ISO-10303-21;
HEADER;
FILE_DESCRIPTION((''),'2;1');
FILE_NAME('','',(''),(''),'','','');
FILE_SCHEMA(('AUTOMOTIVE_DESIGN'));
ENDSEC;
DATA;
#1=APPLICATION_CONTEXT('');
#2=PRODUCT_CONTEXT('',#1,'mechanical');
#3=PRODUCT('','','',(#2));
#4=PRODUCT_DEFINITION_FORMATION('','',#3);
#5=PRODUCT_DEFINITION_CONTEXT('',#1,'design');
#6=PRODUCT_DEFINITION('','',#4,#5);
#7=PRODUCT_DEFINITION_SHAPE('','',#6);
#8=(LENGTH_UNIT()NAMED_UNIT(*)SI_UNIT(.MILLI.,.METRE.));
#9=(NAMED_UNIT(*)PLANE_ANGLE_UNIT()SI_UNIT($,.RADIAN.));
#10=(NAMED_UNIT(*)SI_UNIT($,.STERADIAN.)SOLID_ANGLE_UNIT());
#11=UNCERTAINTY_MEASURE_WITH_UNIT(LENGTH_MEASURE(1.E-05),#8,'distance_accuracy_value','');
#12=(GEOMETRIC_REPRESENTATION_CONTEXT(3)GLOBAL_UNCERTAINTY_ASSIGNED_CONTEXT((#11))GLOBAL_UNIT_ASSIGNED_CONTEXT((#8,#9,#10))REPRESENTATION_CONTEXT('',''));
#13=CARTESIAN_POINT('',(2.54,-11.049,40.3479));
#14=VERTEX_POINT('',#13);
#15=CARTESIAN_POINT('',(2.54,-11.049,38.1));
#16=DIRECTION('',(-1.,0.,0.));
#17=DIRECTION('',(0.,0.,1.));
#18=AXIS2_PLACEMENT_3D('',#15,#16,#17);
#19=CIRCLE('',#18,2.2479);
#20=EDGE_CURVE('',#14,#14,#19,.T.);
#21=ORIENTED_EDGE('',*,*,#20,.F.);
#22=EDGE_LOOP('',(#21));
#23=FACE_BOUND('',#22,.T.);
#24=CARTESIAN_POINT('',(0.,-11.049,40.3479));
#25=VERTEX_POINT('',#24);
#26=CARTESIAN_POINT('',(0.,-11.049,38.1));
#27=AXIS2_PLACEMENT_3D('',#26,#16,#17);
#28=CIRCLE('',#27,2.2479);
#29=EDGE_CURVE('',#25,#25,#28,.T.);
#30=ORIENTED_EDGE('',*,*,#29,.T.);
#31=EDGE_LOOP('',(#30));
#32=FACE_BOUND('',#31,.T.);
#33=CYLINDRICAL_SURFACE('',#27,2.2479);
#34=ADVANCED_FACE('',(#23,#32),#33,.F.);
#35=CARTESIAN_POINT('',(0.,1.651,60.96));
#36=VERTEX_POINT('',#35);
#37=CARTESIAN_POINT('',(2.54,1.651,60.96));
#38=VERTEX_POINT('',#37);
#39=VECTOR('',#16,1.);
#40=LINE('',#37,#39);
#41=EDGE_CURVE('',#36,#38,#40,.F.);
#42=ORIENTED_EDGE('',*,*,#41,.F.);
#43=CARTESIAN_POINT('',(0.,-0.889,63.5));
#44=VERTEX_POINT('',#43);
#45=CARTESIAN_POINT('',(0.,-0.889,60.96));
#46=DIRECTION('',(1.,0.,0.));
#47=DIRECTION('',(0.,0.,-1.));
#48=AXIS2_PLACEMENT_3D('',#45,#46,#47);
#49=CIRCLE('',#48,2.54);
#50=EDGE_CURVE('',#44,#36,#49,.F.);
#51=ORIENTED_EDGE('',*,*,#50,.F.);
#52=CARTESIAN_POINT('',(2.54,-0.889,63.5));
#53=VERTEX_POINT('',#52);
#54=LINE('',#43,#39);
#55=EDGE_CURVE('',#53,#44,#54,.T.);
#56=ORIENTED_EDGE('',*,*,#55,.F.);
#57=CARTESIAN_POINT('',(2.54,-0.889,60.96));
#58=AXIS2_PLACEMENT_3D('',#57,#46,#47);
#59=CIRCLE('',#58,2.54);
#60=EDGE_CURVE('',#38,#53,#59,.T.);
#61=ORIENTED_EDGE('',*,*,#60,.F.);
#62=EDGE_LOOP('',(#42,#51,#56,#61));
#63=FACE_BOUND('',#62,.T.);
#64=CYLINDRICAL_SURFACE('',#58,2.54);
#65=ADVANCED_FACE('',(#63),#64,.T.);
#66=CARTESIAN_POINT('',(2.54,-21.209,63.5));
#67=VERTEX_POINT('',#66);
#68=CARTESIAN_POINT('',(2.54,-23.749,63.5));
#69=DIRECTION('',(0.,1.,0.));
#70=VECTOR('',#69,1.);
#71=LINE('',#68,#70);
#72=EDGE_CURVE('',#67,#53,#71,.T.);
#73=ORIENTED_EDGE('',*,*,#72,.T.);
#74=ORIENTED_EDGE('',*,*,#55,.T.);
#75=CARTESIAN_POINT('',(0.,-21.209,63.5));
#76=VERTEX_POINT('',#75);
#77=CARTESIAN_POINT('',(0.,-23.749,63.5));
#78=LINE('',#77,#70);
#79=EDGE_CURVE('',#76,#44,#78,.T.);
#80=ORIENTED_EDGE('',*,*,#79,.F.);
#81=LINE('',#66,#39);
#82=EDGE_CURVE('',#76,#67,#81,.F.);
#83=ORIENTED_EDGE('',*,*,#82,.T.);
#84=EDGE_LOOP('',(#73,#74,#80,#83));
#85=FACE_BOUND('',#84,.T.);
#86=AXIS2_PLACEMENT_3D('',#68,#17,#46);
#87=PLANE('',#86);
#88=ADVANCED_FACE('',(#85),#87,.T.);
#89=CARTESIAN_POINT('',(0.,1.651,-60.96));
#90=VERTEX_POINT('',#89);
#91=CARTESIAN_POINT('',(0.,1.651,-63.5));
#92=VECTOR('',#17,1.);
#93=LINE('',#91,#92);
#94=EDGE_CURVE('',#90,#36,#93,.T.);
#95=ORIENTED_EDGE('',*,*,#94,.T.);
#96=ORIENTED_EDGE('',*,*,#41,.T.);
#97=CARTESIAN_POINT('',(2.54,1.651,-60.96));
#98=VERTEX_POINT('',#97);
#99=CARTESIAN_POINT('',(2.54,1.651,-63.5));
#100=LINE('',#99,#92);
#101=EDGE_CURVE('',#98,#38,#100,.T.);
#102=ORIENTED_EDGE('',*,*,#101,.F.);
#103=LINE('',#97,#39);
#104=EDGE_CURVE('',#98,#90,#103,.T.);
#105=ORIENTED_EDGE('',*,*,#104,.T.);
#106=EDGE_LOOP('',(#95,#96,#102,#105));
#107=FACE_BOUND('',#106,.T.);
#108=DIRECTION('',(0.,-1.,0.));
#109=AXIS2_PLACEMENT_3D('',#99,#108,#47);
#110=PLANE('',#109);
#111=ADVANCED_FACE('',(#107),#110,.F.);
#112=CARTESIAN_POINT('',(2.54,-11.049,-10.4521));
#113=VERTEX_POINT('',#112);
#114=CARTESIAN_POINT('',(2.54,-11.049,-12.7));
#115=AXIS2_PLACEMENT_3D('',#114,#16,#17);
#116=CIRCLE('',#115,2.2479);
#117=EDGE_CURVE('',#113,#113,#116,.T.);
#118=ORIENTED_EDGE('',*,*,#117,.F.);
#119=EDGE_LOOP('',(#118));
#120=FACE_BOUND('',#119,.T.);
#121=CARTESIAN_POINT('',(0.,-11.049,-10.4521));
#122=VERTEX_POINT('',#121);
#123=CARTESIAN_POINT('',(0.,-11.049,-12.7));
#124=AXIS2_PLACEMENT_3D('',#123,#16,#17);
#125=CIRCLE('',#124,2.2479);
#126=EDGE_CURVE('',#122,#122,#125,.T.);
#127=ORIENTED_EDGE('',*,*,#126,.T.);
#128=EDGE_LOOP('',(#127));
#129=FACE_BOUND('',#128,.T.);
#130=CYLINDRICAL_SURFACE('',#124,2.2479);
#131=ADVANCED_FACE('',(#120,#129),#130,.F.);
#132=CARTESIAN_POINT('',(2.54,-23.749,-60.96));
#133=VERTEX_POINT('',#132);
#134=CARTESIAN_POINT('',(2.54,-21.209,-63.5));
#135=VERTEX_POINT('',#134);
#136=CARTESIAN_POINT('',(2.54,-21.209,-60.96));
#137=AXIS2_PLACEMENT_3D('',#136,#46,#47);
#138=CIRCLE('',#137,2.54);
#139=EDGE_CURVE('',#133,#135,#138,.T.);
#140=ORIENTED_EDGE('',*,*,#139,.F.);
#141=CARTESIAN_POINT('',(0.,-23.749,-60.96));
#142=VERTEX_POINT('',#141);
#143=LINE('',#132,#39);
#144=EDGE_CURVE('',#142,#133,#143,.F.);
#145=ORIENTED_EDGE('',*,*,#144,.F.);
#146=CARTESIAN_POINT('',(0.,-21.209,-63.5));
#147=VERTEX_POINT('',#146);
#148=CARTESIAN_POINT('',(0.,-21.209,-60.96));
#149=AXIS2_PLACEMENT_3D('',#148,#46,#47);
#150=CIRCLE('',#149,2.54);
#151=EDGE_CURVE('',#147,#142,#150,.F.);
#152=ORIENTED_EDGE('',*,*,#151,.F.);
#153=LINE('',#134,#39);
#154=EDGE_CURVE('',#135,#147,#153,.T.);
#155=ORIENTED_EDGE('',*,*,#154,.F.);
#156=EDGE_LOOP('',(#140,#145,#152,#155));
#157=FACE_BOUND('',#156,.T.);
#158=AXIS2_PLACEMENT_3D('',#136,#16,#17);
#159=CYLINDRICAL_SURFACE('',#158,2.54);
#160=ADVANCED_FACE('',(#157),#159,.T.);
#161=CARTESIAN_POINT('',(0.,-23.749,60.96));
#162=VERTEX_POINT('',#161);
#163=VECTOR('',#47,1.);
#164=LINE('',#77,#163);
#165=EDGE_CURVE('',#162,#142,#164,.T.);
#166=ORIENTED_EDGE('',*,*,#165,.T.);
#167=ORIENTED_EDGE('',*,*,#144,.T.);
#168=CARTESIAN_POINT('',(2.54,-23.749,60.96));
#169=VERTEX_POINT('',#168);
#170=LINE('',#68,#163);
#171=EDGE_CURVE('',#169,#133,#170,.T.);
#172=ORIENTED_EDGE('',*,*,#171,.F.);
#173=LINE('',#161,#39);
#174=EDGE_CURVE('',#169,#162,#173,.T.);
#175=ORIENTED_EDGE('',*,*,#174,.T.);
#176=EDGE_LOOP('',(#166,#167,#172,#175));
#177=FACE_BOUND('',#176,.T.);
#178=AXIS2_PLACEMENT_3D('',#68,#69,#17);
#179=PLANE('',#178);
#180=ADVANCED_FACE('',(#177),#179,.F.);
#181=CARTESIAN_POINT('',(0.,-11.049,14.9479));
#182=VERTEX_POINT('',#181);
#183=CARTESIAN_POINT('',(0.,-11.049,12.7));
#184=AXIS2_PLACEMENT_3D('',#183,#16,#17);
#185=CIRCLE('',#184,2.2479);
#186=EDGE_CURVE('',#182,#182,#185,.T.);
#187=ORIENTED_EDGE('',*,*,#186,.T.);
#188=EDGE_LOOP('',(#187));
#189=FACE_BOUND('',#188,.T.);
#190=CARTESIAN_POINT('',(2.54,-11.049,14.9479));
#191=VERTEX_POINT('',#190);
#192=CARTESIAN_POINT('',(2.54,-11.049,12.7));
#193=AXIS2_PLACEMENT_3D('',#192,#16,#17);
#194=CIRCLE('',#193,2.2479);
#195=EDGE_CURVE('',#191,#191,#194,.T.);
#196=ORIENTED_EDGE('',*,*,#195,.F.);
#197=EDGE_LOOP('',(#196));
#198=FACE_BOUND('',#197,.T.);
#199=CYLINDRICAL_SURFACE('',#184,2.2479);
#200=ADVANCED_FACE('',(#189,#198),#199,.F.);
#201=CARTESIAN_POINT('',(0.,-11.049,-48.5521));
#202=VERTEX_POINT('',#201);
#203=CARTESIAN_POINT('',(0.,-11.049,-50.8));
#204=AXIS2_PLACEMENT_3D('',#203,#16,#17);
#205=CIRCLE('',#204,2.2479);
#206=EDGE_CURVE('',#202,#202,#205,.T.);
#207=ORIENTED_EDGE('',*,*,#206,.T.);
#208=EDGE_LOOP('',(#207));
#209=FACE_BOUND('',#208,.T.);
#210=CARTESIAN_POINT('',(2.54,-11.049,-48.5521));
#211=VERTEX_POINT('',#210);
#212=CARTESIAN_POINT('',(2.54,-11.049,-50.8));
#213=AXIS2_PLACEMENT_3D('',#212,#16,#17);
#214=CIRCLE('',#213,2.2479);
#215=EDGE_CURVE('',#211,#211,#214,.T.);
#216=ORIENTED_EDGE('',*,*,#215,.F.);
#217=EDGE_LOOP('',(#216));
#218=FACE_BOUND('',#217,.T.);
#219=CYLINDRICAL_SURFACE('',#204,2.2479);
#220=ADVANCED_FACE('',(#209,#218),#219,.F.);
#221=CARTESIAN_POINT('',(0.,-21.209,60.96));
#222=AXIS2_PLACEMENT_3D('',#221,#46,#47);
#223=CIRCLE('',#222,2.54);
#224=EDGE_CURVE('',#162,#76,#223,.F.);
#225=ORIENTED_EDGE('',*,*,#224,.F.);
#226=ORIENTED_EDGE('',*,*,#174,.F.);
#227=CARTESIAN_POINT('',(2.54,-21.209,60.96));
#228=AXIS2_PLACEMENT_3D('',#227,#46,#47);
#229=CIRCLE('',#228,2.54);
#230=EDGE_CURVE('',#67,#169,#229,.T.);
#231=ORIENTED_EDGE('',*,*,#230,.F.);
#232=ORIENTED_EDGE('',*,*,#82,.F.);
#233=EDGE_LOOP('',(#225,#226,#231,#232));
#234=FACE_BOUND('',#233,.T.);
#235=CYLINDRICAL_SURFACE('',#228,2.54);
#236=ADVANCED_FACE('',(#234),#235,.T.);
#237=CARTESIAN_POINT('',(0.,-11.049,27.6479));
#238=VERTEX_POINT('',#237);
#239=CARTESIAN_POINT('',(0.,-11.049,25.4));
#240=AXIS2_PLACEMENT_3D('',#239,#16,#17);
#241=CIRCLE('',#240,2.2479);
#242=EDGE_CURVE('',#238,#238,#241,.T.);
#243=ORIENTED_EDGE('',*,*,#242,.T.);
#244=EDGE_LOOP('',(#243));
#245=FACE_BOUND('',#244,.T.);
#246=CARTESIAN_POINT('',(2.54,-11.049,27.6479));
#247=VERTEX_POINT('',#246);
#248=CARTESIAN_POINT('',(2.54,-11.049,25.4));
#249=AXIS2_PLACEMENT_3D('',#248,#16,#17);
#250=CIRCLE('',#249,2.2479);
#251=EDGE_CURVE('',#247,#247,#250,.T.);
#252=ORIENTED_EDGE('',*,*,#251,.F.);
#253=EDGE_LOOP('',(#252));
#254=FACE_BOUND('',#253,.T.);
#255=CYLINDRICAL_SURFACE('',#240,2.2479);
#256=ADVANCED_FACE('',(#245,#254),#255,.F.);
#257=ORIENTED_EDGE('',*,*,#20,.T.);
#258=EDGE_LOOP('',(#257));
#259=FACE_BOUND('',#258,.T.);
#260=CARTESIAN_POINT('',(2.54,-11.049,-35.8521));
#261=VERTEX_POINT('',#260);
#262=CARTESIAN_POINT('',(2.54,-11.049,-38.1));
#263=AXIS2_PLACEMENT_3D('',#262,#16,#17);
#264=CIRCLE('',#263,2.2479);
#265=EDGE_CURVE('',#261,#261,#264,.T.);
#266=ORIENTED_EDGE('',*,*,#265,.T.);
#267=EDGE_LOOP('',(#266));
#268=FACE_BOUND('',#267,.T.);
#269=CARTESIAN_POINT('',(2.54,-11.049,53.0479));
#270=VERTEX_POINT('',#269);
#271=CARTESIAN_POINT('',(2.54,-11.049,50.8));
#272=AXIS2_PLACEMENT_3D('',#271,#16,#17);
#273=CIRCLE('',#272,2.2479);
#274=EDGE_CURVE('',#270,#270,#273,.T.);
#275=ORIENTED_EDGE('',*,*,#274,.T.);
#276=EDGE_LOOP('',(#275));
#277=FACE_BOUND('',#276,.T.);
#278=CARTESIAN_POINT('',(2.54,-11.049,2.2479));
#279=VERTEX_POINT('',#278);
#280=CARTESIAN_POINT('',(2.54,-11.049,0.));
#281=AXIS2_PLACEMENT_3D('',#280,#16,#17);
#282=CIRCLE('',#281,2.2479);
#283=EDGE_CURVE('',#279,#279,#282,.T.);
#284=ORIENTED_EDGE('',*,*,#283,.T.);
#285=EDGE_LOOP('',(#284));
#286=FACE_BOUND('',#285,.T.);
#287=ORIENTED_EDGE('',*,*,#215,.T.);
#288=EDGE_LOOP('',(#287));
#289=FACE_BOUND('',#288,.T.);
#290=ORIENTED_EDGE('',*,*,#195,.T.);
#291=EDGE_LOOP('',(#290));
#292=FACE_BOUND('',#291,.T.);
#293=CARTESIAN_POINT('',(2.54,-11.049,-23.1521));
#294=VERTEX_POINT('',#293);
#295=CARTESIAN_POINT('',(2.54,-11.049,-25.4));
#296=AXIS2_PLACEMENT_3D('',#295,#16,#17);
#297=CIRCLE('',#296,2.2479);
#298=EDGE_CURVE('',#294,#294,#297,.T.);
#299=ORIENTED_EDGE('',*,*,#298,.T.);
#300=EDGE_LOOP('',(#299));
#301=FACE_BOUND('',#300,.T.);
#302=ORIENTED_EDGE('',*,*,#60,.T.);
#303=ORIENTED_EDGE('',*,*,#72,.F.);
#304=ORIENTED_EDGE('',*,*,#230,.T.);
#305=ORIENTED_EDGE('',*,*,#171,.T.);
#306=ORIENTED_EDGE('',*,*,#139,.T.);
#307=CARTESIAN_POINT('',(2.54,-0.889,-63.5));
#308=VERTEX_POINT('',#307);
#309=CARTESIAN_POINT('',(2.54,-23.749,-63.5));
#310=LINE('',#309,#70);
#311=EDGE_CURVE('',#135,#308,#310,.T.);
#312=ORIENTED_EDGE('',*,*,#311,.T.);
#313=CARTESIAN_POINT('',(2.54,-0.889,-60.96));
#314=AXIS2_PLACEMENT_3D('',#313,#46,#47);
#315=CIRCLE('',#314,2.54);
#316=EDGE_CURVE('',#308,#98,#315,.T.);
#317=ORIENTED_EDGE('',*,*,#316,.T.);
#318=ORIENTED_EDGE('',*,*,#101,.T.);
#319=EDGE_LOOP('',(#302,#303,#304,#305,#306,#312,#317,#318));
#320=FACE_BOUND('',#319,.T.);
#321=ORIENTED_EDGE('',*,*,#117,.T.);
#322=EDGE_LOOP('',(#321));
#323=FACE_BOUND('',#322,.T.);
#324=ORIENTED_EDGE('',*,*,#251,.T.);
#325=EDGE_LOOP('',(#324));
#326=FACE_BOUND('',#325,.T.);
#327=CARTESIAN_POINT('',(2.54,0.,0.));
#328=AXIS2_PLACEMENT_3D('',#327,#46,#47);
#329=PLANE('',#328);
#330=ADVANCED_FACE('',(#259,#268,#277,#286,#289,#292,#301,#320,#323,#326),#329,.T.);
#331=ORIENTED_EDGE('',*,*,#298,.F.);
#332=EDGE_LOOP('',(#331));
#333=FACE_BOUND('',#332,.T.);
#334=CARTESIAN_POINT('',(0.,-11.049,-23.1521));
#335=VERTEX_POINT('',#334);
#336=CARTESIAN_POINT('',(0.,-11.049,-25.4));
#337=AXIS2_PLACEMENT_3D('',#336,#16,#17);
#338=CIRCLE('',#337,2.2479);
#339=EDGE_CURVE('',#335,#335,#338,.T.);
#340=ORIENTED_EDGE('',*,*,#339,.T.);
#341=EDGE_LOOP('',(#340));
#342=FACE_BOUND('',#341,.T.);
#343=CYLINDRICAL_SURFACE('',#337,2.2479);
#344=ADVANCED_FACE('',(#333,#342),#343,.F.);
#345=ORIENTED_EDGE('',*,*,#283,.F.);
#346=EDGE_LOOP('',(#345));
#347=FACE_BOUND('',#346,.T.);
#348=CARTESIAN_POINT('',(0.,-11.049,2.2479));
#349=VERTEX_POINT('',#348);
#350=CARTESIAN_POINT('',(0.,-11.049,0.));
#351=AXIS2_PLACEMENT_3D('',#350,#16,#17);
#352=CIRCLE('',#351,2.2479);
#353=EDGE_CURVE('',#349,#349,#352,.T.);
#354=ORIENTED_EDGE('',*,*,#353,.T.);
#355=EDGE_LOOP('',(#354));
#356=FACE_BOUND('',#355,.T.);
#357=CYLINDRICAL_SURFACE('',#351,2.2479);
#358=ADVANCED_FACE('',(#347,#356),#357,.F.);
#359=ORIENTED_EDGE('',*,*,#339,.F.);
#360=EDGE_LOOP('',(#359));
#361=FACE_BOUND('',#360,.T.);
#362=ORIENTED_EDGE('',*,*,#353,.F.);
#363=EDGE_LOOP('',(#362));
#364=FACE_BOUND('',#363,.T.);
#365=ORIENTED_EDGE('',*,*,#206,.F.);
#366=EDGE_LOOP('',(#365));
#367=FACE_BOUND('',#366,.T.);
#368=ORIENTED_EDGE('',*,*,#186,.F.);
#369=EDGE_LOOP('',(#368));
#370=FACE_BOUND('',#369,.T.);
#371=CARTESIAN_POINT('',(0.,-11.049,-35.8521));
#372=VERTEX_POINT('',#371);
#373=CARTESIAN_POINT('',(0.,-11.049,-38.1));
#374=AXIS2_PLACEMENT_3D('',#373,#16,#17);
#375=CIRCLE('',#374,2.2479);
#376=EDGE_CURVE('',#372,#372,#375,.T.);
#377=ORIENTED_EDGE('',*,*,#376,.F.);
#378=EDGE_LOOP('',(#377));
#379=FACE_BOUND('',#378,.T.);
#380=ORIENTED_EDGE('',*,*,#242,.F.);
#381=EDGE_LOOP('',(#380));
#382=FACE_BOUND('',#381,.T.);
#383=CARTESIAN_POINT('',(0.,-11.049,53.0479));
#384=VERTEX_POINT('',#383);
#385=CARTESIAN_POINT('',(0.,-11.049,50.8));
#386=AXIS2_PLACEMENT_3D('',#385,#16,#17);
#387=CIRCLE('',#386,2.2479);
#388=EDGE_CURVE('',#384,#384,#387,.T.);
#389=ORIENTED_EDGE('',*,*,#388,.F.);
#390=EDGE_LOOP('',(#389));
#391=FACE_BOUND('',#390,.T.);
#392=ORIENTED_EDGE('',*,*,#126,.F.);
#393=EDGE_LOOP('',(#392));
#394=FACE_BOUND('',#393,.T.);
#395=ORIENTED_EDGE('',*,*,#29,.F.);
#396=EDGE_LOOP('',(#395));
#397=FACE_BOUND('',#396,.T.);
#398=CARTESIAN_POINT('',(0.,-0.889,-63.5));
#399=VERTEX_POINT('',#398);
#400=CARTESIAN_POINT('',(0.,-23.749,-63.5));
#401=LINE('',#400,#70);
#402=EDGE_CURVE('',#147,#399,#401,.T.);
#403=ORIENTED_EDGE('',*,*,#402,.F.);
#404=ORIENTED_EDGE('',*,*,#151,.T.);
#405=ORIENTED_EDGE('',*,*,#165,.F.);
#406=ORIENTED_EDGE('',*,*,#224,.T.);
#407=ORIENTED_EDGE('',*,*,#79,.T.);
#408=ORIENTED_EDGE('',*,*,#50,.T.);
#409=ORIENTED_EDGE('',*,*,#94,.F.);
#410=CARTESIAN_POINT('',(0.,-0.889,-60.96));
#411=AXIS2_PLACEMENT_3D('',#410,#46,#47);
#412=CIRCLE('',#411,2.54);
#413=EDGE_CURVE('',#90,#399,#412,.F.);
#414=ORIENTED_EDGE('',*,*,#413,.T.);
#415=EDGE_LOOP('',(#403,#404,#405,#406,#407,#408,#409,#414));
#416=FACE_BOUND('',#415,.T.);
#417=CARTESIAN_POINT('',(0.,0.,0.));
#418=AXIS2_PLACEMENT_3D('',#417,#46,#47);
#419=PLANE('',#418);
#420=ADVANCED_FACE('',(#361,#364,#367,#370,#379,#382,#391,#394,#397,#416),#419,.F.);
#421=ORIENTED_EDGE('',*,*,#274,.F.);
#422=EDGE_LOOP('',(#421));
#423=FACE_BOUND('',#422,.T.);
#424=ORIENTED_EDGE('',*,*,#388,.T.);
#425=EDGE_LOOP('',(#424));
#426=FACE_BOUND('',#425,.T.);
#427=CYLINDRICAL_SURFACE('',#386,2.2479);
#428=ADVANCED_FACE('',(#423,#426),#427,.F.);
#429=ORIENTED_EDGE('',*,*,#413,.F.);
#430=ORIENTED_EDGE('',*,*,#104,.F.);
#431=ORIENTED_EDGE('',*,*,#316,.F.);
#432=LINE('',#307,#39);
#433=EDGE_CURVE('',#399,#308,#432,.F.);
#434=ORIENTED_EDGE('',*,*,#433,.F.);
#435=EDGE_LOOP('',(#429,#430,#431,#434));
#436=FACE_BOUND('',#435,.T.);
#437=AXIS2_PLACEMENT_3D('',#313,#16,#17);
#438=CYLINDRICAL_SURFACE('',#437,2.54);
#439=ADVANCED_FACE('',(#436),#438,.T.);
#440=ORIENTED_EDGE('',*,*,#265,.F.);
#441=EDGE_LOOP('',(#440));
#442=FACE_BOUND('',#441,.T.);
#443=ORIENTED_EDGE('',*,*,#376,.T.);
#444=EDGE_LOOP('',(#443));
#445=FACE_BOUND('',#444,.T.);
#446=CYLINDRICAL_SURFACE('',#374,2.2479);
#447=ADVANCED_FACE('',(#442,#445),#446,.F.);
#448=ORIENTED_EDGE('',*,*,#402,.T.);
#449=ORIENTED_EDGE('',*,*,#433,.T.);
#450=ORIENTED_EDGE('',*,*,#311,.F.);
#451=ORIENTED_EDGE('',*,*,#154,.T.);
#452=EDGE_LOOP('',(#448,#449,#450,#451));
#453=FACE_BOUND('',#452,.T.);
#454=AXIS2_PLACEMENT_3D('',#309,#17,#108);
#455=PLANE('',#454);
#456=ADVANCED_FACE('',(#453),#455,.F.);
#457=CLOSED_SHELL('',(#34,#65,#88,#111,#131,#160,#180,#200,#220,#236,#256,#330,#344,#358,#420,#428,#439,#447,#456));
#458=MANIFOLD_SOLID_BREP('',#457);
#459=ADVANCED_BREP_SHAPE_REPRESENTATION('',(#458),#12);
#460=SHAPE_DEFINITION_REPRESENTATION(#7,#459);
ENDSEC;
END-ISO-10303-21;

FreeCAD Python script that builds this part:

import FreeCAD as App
import Part
import Sketcher
Q = App.Units.Quantity


def edges_at(feature, points):
    """Names of the edges that pass closest to the given points."""
    edges = feature.Shape.Edges
    near = lambda p: min(range(len(edges)), key=lambda i: edges[i].distToShape(Part.Vertex(*p))[0])
    return sorted({f"Edge{near(p) + 1}" for p in points})


def add_polygon(sketch, points):
    """Adds a closed chain of lines whose ends are joined by coincident constraints."""
    first, n = sketch.GeometryCount, len(points)
    for a, b in zip(points, points[1:] + points[:1]):
        sketch.addGeometry(Part.LineSegment(App.Vector(*a, 0), App.Vector(*b, 0)), False)
    for i in range(n):
        sketch.addConstraint(Sketcher.Constraint("Coincident", first + i, 2, first + (i + 1) % n, 1))

doc = App.newDocument("Part")
body = doc.addObject("PartDesign::Body", "Body")

# Sketch on YZ plane
sketch1 = body.newObject("Sketcher::SketchObject", "Sketch")
sketch1.AttachmentSupport = (doc.getObject("YZ_Plane"), [""])
sketch1.MapMode = "FlatFace"
add_polygon(sketch1, [(1.651, 63.5), (-23.749, 63.5), (-23.749, -63.5), (1.651, -63.5)])  # lines 0-3
sketch1.addConstraint(Sketcher.Constraint("Horizontal", 0))
sketch1.addConstraint(Sketcher.Constraint("Vertical", 1))
sketch1.addConstraint(Sketcher.Constraint("Horizontal", 2))
sketch1.addConstraint(Sketcher.Constraint("Vertical", 3))
sketch1.addConstraint(Sketcher.Constraint("DistanceX", 0, 2, 0, 1, Q("1 in")))
sketch1.addConstraint(Sketcher.Constraint("DistanceY", 1, 2, 1, 1, Q("5 in")))
sketch1.addConstraint(Sketcher.Constraint("DistanceY", -1, 1, 0, 2, Q("2.5 in")))
sketch1.addConstraint(Sketcher.Constraint("DistanceX", 0, 2, -1, 1, Q("0.935 in")))
pad1 = body.newObject("PartDesign::Pad", "Pad")
pad1.Profile = sketch1
pad1.Length = Q("0.1 in")

# Sketch on YZ plane
sketch2 = body.newObject("Sketcher::SketchObject", "Sketch001")
sketch2.AttachmentSupport = (doc.getObject("YZ_Plane"), [""])
sketch2.MapMode = "FlatFace"
sketch2.addGeometry(Part.Circle(App.Vector(-11.049, -50.8, 0), App.Vector(0, 0, 1), 2.2479), False)
sketch2.addGeometry(Part.Circle(App.Vector(-11.049, -25.4, 0), App.Vector(0, 0, 1), 2.2479), False)
sketch2.addGeometry(Part.Circle(App.Vector(-11.049, -38.1, 0), App.Vector(0, 0, 1), 2.2479), False)
sketch2.addGeometry(Part.Circle(App.Vector(-11.049, 0, 0), App.Vector(0, 0, 1), 2.2479), False)
sketch2.addGeometry(Part.Circle(App.Vector(-11.049, 25.4, 0), App.Vector(0, 0, 1), 2.2479), False)
sketch2.addGeometry(Part.Circle(App.Vector(-11.049, 50.8, 0), App.Vector(0, 0, 1), 2.2479), False)
sketch2.addGeometry(Part.Circle(App.Vector(-11.049, -12.7, 0), App.Vector(0, 0, 1), 2.2479), False)
sketch2.addGeometry(Part.Circle(App.Vector(-11.049, 12.7, 0), App.Vector(0, 0, 1), 2.2479), False)
sketch2.addGeometry(Part.Circle(App.Vector(-11.049, 38.1, 0), App.Vector(0, 0, 1), 2.2479), False)
sketch2.addConstraint(Sketcher.Constraint("Equal", 0, 1))
sketch2.addConstraint(Sketcher.Constraint("Equal", 1, 2))
sketch2.addConstraint(Sketcher.Constraint("Equal", 2, 3))
sketch2.addConstraint(Sketcher.Constraint("Equal", 3, 4))
sketch2.addConstraint(Sketcher.Constraint("Equal", 4, 5))
sketch2.addConstraint(Sketcher.Constraint("Equal", 5, 6))
sketch2.addConstraint(Sketcher.Constraint("Equal", 6, 7))
sketch2.addConstraint(Sketcher.Constraint("Equal", 7, 8))
sketch2.addConstraint(Sketcher.Constraint("Symmetric", 1, 3, 4, 3, -1))
sketch2.addConstraint(Sketcher.Constraint("Symmetric", 0, 3, 5, 3, -1))
sketch2.addConstraint(Sketcher.Constraint("Symmetric", 6, 3, 7, 3, -1))
sketch2.addConstraint(Sketcher.Constraint("Symmetric", 2, 3, 8, 3, -1))
sketch2.addConstraint(Sketcher.Constraint("PointOnObject", 3, 3, -1))
sketch2.addConstraint(Sketcher.Constraint("Vertical", 0, 3, 1, 3))
sketch2.addConstraint(Sketcher.Constraint("Vertical", 1, 3, 2, 3))
sketch2.addConstraint(Sketcher.Constraint("Vertical", 2, 3, 3, 3))
sketch2.addConstraint(Sketcher.Constraint("Vertical", 5, 3, 6, 3))
sketch2.addConstraint(Sketcher.Constraint("Diameter", 0, Q("0.177 in")))
sketch2.addConstraint(Sketcher.Constraint("DistanceY", 0, 3, -1, 1, Q("2 in")))
sketch2.addConstraint(Sketcher.Constraint("DistanceY", 1, 3, -1, 1, Q("1 in")))
sketch2.addConstraint(Sketcher.Constraint("DistanceY", 2, 3, 6, 3, Q("1 in")))
sketch2.addConstraint(Sketcher.Constraint("DistanceY", 6, 3, 7, 3, Q("1 in")))
sketch2.addConstraint(Sketcher.Constraint("DistanceX", 0, 3, -1, 1, Q("0.435 in")))
doc.recompute()
hole = body.newObject("PartDesign::Hole", "Hole")
hole.Profile = sketch2
hole.ThreadType = "None"
hole.Diameter = Q("0.177 in")
hole.DepthType = "ThroughAll"
hole.Reversed = True
doc.recompute()

fillet = body.newObject("PartDesign::Fillet", "Fillet")
fillet.Base = (hole, edges_at(hole, [
    (1.27, -23.749, 63.5),
    (1.27, 1.651, 63.5),
    (1.27, 1.651, -63.5),
    (1.27, -23.749, -63.5),
]))
fillet.Radius = Q("0.1 in")

doc.recompute()
